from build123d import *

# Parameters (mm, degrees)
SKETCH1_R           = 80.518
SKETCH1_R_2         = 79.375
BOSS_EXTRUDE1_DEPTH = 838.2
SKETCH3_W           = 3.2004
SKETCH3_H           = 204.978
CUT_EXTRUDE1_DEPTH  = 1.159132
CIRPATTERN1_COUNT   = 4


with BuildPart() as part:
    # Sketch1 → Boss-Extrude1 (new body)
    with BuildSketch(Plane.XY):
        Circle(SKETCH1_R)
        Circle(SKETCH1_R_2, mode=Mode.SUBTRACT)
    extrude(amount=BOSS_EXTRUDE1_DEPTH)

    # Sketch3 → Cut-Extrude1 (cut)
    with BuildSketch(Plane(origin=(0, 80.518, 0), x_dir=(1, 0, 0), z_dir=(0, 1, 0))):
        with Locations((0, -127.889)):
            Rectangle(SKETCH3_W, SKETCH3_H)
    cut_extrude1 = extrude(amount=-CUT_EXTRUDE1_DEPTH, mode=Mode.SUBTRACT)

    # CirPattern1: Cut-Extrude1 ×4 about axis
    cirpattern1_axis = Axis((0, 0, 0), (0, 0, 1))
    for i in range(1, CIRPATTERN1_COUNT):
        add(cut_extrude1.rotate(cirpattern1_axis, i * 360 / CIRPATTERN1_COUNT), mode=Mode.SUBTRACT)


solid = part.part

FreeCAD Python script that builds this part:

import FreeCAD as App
import Part
import Sketcher
Q = App.Units.Quantity

doc = App.newDocument("Part")
body = doc.addObject("PartDesign::Body", "Body")

sketch1 = body.newObject("Sketcher::SketchObject", "Sketch")
sketch1.AttachmentSupport = (doc.getObject("XY_Plane"), [""])
sketch1.MapMode = "FlatFace"
sketch1.addGeometry(Part.Circle(App.Vector(0, 0, 0), App.Vector(0, 0, 1), 81), False)
sketch1.addGeometry(Part.Circle(App.Vector(0, 0, 0), App.Vector(0, 0, 1), 79), False)
sketch1.addConstraint(Sketcher.Constraint("Coincident", 0, 3, -1, 1))
sketch1.addConstraint(Sketcher.Constraint("Coincident", 1, 3, -1, 1))
sketch1.addConstraint(Sketcher.Constraint("Diameter", 0, Q("6.34 in")))
sketch1.addConstraint(Sketcher.Constraint("Diameter", 1, Q("6.25 in")))
pad1 = body.newObject("PartDesign::Pad", "Pad")
pad1.Profile = sketch1
pad1.Length = Q("33 in")

sketch2 = body.newObject("Sketcher::SketchObject", "Sketch001")
sketch2.AttachmentSupport = (doc.getObject("XZ_Plane"), [""])
sketch2.MapMode = "FlatFace"
sketch2.AttachmentOffset = App.Placement(App.Vector(0, 0, -3.17 * 25.4), App.Rotation())
sketch2.addGeometry(Part.LineSegment(App.Vector(-1.6, 25.4, 0), App.Vector(-1.6, 230.4, 0)), False)
sketch2.addGeometry(Part.LineSegment(App.Vector(-1.6, 230.4, 0), App.Vector(1.6, 230.4, 0)), False)
sketch2.addGeometry(Part.LineSegment(App.Vector(1.6, 230.4, 0), App.Vector(1.6, 25.4, 0)), False)
sketch2.addGeometry(Part.LineSegment(App.Vector(1.6, 25.4, 0), App.Vector(-1.6, 25.4, 0)), False)
sketch2.addConstraint(Sketcher.Constraint("Coincident", 0, 2, 1, 1))
sketch2.addConstraint(Sketcher.Constraint("Coincident", 1, 2, 2, 1))
sketch2.addConstraint(Sketcher.Constraint("Coincident", 2, 2, 3, 1))
sketch2.addConstraint(Sketcher.Constraint("Coincident", 3, 2, 0, 1))
sketch2.addConstraint(Sketcher.Constraint("Vertical", 0))
sketch2.addConstraint(Sketcher.Constraint("Horizontal", 1))
sketch2.addConstraint(Sketcher.Constraint("Vertical", 2))
sketch2.addConstraint(Sketcher.Constraint("Horizontal", 3))
sketch2.addConstraint(Sketcher.Constraint("DistanceY", -1, 1, 2, 2, Q("1 in")))
sketch2.addConstraint(Sketcher.Constraint("DistanceY", 0, 1, 0, 2, Q("8.07 in")))
sketch2.addConstraint(Sketcher.Constraint("DistanceX", 1, 1, 1, 2, Q("0.126 in")))
sketch2.addConstraint(Sketcher.Constraint("DistanceX", 0, 2, -1, 1, Q("0.063 in")))
pocket1 = body.newObject("PartDesign::Pocket", "Pocket")
pocket1.Profile = sketch2
pocket1.Length = 1.159132
pocket1.Reversed = True
doc.recompute()

polarpattern = body.newObject("PartDesign::PolarPattern", "PolarPattern")
polarpattern.Originals = [pocket1]
polarpattern.Axis = (doc.getObject("Z_Axis"), [""])
polarpattern.Angle = 360
polarpattern.Occurrences = 4
body.Tip = polarpattern

doc.recompute()
